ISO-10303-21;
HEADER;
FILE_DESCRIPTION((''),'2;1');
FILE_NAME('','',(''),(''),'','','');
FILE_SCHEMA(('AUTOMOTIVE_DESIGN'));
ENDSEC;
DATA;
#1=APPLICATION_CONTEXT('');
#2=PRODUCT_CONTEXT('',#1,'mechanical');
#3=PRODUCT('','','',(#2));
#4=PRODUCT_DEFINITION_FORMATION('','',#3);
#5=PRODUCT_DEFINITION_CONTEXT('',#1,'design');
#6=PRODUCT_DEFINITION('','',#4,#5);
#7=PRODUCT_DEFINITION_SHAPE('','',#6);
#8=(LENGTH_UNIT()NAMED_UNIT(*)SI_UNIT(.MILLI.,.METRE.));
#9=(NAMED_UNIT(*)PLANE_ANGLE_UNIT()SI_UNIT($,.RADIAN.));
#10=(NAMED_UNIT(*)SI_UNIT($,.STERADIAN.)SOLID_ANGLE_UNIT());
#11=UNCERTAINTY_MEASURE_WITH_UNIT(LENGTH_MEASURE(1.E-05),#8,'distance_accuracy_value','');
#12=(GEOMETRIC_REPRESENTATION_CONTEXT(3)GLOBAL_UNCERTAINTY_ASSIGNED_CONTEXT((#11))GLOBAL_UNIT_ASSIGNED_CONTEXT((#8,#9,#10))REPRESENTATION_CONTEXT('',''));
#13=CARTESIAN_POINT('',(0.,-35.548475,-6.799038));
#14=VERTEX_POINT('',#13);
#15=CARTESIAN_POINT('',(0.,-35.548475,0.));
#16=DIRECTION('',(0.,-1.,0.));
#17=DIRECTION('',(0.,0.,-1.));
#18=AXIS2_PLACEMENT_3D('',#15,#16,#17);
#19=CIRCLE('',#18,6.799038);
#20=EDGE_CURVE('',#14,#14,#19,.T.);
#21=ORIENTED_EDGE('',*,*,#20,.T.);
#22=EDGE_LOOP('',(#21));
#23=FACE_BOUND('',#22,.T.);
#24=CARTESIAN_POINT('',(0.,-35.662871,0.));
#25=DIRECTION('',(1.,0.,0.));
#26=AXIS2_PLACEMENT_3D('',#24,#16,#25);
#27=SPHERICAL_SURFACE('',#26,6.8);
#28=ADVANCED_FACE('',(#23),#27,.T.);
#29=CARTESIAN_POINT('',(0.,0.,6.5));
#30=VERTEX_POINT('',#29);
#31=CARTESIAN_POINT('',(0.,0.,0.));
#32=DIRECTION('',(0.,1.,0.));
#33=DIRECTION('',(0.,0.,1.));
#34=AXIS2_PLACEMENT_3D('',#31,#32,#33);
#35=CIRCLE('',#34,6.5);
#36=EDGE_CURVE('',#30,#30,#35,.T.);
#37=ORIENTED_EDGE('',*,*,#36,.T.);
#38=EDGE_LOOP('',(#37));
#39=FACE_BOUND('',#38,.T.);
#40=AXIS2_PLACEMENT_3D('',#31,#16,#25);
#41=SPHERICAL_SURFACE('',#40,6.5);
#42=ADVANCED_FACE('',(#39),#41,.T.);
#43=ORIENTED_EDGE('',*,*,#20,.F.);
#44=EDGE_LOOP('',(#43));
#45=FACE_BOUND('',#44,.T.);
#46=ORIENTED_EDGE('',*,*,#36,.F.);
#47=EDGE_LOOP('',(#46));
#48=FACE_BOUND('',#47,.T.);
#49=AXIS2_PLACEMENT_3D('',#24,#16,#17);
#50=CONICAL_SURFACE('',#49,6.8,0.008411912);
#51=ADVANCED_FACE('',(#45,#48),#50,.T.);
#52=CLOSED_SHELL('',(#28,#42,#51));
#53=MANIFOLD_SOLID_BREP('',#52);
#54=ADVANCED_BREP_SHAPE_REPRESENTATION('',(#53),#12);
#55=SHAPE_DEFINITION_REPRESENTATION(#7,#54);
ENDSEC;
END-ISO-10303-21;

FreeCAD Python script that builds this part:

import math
import FreeCAD as App
import Part
import Sketcher
from FreeCAD import Vector
Q = App.Units.Quantity

doc = App.newDocument("Part")
params = doc.addObject("Spreadsheet::Sheet", "Params")
for row, (alias, value) in enumerate([
    ("sketch1_width", "6.5 mm"),
    ("sketch1_width2", "6.8 mm"),
    ("revolution_angle", "360 deg"),
    ("sketch2_radius", "6.5 mm"),
    ("revolution2_angle", "360 deg"),
    ("sketch3_radius", "6.8 mm"),
    ("revolution3_angle", "360 deg"),
], start=1):
    params.set(f"A{row}", alias)
    params.set(f"B{row}", "=" + value)
    params.setAlias(f"B{row}", alias)

body = doc.addObject("PartDesign::Body", "Body")

# Sketch on XY plane
sketch1 = body.newObject("Sketcher::SketchObject", "Sketch")
sketch1.AttachmentSupport = (doc.getObject("XY_Plane"), [""])
sketch1.MapMode = "FlatFace"
sketch1.addGeometry(Part.LineSegment(Vector(6, 0, 0), Vector(0, 0, 0)), False)
sketch1.addGeometry(Part.LineSegment(Vector(0, 0, 0), Vector(0, -36, 0)), False)
sketch1.addGeometry(Part.LineSegment(Vector(0, -36, 0), Vector(7, -36, 0)), False)
sketch1.addGeometry(Part.LineSegment(Vector(7, -36, 0), Vector(6, 0, 0)), False)
sketch1.addConstraint(Sketcher.Constraint("Coincident", 0, 2, 1, 1))
sketch1.addConstraint(Sketcher.Constraint("Coincident", 1, 2, 2, 1))
sketch1.addConstraint(Sketcher.Constraint("Coincident", 2, 2, 3, 1))
sketch1.addConstraint(Sketcher.Constraint("Coincident", 3, 2, 0, 1))
sketch1.addConstraint(Sketcher.Constraint("Horizontal", 0))
sketch1.addConstraint(Sketcher.Constraint("Vertical", 1))
sketch1.addConstraint(Sketcher.Constraint("Horizontal", 2))
sketch1.addConstraint(Sketcher.Constraint("Coincident", 0, 2, -1, 1))
sketch1.addConstraint(Sketcher.Constraint("DistanceX", 0, 2, 0, 1, Q("6.5 mm")))
sketch1.addConstraint(Sketcher.Constraint("DistanceX", 2, 1, 2, 2, Q("6.8 mm")))
sketch1.addConstraint(Sketcher.Constraint("DistanceY", 1, 2, 1, 1, Q("35.662871 mm")))
sketch1.setExpression("Constraints[8]", "Params.sketch1_width")
sketch1.setExpression("Constraints[9]", "Params.sketch1_width2")
revolution = body.newObject("PartDesign::Revolution", "Revolution")
revolution.Profile = sketch1
revolution.ReferenceAxis = (sketch1, ["V_Axis"])
revolution.setExpression("Angle", "Params.revolution_angle")

# Sketch on XY plane
sketch2 = body.newObject("Sketcher::SketchObject", "Sketch001")
sketch2.AttachmentSupport = (doc.getObject("XY_Plane"), [""])
sketch2.MapMode = "FlatFace"
sketch2.addGeometry(Part.LineSegment(Vector(0, 6, 0), Vector(0, -6, 0)), False)
sketch2.addGeometry(Part.ArcOfCircle(Part.Circle(Vector(0, 0, 0), Vector(0, 0, 1), 6), math.radians(-90), math.radians(90)), False)
sketch2.addConstraint(Sketcher.Constraint("Coincident", 0, 1, 1, 2))
sketch2.addConstraint(Sketcher.Constraint("Coincident", 1, 1, 0, 2))
sketch2.addConstraint(Sketcher.Constraint("Vertical", 0))
sketch2.addConstraint(Sketcher.Constraint("Coincident", 1, 3, -1, 1))
sketch2.addConstraint(Sketcher.Constraint("PointOnObject", 0, 1, -2))
sketch2.addConstraint(Sketcher.Constraint("Radius", 1, Q("6.5 mm")))
sketch2.setExpression("Constraints[5]", "Params.sketch2_radius")
revolution2 = body.newObject("PartDesign::Revolution", "Revolution001")
revolution2.Profile = sketch2
revolution2.ReferenceAxis = (sketch2, ["V_Axis"])
revolution2.setExpression("Angle", "Params.revolution2_angle")

# Sketch on XY plane
sketch3 = body.newObject("Sketcher::SketchObject", "Sketch002")
sketch3.AttachmentSupport = (doc.getObject("XY_Plane"), [""])
sketch3.MapMode = "FlatFace"
sketch3.addGeometry(Part.LineSegment(Vector(0, -29, 0), Vector(0, -42, 0)), False)
sketch3.addGeometry(Part.ArcOfCircle(Part.Circle(Vector(0, -36, 0), Vector(0, 0, 1), 7), math.radians(-90), math.radians(90)), False)
sketch3.addConstraint(Sketcher.Constraint("Coincident", 0, 1, 1, 2))
sketch3.addConstraint(Sketcher.Constraint("Coincident", 1, 1, 0, 2))
sketch3.addConstraint(Sketcher.Constraint("Vertical", 0))
sketch3.addConstraint(Sketcher.Constraint("PointOnObject", 1, 3, -2))
sketch3.addConstraint(Sketcher.Constraint("PointOnObject", 0, 1, -2))
sketch3.addConstraint(Sketcher.Constraint("Radius", 1, Q("6.8 mm")))
sketch3.addConstraint(Sketcher.Constraint("DistanceY", 1, 3, -1, 1, Q("35.662871 mm")))
sketch3.setExpression("Constraints[5]", "Params.sketch3_radius")
revolution3 = body.newObject("PartDesign::Revolution", "Revolution002")
revolution3.Profile = sketch3
revolution3.ReferenceAxis = (sketch3, ["V_Axis"])
revolution3.setExpression("Angle", "Params.revolution3_angle")

doc.recompute()
